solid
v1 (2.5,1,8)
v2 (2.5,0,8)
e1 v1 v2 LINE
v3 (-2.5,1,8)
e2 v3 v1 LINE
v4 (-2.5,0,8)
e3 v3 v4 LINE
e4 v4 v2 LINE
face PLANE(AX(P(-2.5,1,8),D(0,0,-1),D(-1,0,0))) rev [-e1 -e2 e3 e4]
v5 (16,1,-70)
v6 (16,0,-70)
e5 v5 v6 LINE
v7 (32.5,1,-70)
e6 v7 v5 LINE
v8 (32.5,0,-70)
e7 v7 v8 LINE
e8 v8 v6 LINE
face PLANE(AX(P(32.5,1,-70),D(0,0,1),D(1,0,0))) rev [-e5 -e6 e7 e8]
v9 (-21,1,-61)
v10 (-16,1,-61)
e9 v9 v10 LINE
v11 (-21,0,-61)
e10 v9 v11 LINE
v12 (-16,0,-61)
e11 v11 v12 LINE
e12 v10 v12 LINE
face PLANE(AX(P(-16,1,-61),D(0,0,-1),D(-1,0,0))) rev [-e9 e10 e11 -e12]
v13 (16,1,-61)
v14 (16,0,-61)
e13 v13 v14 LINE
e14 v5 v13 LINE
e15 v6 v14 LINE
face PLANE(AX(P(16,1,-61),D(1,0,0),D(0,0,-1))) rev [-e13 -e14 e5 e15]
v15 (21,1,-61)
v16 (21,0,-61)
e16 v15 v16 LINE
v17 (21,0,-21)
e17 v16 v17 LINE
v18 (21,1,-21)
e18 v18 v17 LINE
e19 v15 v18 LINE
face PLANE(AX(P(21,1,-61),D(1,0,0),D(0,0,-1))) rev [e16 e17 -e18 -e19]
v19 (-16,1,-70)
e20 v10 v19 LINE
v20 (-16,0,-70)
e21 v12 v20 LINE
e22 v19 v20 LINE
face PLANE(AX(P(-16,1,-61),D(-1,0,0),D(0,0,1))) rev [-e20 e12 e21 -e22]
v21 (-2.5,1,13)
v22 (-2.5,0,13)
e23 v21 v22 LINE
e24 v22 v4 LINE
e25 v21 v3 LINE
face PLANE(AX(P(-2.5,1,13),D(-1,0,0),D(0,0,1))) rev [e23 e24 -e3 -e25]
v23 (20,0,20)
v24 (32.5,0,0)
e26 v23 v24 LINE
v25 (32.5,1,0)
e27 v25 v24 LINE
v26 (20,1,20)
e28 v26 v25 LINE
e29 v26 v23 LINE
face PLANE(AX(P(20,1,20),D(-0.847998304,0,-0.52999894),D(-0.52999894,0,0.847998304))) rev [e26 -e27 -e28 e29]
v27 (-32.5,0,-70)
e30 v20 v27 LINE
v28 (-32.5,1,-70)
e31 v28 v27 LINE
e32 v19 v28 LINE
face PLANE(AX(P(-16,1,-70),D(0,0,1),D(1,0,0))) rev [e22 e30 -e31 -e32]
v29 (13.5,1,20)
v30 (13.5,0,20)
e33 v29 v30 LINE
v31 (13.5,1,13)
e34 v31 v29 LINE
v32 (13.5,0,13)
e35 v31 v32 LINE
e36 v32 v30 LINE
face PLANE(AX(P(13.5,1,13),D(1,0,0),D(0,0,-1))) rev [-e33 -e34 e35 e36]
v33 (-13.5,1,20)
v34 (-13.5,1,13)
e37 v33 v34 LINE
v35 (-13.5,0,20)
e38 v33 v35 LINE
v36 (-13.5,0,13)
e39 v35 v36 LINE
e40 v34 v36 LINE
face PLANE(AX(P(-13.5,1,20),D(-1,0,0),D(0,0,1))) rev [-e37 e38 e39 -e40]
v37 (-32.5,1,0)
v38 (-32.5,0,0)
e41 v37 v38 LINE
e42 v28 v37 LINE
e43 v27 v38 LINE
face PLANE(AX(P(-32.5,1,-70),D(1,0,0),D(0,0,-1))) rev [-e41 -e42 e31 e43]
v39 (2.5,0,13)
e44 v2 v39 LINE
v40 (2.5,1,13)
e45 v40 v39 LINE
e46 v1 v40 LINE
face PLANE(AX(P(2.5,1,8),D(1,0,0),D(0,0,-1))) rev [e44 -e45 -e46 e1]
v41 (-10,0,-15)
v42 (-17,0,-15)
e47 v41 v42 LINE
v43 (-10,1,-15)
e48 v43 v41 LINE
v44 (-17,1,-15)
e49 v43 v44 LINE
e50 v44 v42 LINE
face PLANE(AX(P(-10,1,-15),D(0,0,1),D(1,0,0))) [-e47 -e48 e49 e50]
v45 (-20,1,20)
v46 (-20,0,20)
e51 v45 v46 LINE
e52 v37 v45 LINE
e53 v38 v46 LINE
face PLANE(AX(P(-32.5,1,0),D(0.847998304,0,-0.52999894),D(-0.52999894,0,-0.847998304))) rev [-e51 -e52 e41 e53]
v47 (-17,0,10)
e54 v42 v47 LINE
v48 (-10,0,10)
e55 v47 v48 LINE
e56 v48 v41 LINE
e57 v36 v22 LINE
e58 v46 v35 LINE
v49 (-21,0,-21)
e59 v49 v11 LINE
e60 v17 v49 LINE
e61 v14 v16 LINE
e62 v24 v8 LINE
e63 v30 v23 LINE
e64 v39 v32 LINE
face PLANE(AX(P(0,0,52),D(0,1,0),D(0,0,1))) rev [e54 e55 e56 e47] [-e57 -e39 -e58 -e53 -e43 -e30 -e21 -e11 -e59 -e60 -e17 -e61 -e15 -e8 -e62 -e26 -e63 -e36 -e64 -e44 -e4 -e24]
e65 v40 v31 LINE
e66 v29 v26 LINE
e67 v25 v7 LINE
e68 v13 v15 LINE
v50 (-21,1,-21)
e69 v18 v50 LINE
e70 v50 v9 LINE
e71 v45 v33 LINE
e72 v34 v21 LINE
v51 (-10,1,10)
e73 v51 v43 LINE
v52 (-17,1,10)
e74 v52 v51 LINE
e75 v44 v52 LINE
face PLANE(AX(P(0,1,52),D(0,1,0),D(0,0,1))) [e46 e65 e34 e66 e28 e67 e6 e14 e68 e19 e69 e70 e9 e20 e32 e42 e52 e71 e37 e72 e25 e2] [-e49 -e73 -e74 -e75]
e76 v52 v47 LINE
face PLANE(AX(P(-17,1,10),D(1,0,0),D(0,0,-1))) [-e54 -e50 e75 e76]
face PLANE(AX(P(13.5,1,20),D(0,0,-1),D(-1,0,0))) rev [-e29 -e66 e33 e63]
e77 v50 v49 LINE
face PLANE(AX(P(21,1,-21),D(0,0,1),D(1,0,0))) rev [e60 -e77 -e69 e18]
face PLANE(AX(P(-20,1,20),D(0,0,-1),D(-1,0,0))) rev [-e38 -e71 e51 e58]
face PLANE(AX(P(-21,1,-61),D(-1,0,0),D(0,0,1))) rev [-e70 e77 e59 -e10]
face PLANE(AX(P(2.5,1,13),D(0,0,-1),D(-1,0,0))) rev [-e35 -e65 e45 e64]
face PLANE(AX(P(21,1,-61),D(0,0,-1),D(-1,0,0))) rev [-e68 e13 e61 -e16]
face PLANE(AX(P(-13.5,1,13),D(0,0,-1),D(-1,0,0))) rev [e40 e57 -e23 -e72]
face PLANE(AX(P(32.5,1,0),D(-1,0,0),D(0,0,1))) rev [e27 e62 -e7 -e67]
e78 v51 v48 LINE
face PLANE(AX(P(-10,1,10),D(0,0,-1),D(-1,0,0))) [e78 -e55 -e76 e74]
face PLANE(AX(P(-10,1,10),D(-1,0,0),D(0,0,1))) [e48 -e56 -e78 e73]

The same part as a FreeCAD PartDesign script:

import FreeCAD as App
import Part
import Sketcher
from FreeCAD import Vector
Q = App.Units.Quantity


def add_polygon(sketch, points):
    """Adds a closed chain of lines whose ends are joined by coincident constraints."""
    first, n = sketch.GeometryCount, len(points)
    for a, b in zip(points, points[1:] + points[:1]):
        sketch.addGeometry(Part.LineSegment(App.Vector(*a, 0), App.Vector(*b, 0)), False)
    for i in range(n):
        sketch.addConstraint(Sketcher.Constraint("Coincident", first + i, 2, first + (i + 1) % n, 1))

doc = App.newDocument("Part")
body = doc.addObject("PartDesign::Body", "Body")

sketch1 = body.newObject("Sketcher::SketchObject", "Sketch")
sketch1.AttachmentSupport = (doc.getObject("XZ_Plane"), [""])
sketch1.MapMode = "FlatFace"
add_polygon(sketch1, [(-20, 20), (-13.5, 20), (-13.5, 13), (-2.5, 13), (-2.5, 8), (2.5, 8), (2.5, 13), (13.5, 13), (13.5, 20), (20, 20), (32.5, 0), (32.5, -70), (16, -70), (16, -61), (21, -61), (21, -21), (-21, -21), (-21, -61), (-16, -61), (-16, -70), (-32.5, -70), (-32.5, 0)])
add_polygon(sketch1, [(-10, 10), (-17, 10), (-17, -15), (-10, -15)])
sketch1.addConstraint([
    Sketcher.Constraint("Horizontal", 0),
    Sketcher.Constraint("Vertical", 1),
    Sketcher.Constraint("Horizontal", 2),
    Sketcher.Constraint("Vertical", 3),
    Sketcher.Constraint("Horizontal", 4),
    Sketcher.Constraint("Vertical", 5),
    Sketcher.Constraint("Horizontal", 6),
    Sketcher.Constraint("Vertical", 7),
    Sketcher.Constraint("Horizontal", 8),
    Sketcher.Constraint("Vertical", 10),
    Sketcher.Constraint("Horizontal", 11),
    Sketcher.Constraint("Vertical", 12),
    Sketcher.Constraint("Horizontal", 13),
    Sketcher.Constraint("Vertical", 14),
    Sketcher.Constraint("Horizontal", 15),
    Sketcher.Constraint("Vertical", 16),
    Sketcher.Constraint("Horizontal", 17),
    Sketcher.Constraint("Vertical", 18),
    Sketcher.Constraint("Horizontal", 19),
    Sketcher.Constraint("Vertical", 20),
    Sketcher.Constraint("Horizontal", 22),
    Sketcher.Constraint("Vertical", 23),
    Sketcher.Constraint("Horizontal", 24),
    Sketcher.Constraint("Vertical", 25),
    Sketcher.Constraint("Symmetric", 9, 2, 20, 2, -1, 1),
    Sketcher.Constraint("Symmetric", 2, 2, 5, 2, -2),
    Sketcher.Constraint("Symmetric", 0, 2, 7, 2, -2),
    Sketcher.Constraint("Symmetric", 13, 2, 16, 2, -2),
    Sketcher.Constraint("Symmetric", 11, 2, 18, 2, -2),
    Sketcher.Constraint("PointOnObject", 9, 2, -1),
    Sketcher.Constraint("Equal", 0, 8),
    Sketcher.Constraint("Equal", 4, 13),
    Sketcher.Constraint("Equal", 24, 1),
    Sketcher.Constraint("Equal", 17, 3),
    Sketcher.Constraint("DistanceX", 2, 1, 2, 2, Q("11 mm")),
    Sketcher.Constraint("DistanceX", 4, 1, 4, 2, Q("5 mm")),
    Sketcher.Constraint("DistanceX", 15, 2, 15, 1, Q("42 mm")),
    Sketcher.Constraint("DistanceX", 22, 2, 22, 1, Q("7 mm")),
    Sketcher.Constraint("DistanceY", 10, 2, 10, 1, Q("70 mm")),
    Sketcher.Constraint("DistanceY", 12, 1, 12, 2, Q("9 mm")),
    Sketcher.Constraint("DistanceY", 14, 1, 14, 2, Q("40 mm")),
    Sketcher.Constraint("DistanceY", 23, 2, 23, 1, Q("25 mm")),
    Sketcher.Constraint("DistanceX", 0, 1, 0, 2, Q("6.5 mm")),
    Sketcher.Constraint("DistanceX", 11, 2, 11, 1, Q("16.5 mm")),
    Sketcher.Constraint("DistanceY", -1, 1, 0, 2, Q("20 mm")),
    Sketcher.Constraint("DistanceX", 22, 2, -1, 1, Q("17 mm")),
    Sketcher.Constraint("DistanceY", -1, 1, 22, 2, Q("10 mm")),
])
pad1 = body.newObject("PartDesign::Pad", "Pad")
pad1.Profile = sketch1
pad1.Length = 1
pad1.Reversed = True

doc.recompute()
